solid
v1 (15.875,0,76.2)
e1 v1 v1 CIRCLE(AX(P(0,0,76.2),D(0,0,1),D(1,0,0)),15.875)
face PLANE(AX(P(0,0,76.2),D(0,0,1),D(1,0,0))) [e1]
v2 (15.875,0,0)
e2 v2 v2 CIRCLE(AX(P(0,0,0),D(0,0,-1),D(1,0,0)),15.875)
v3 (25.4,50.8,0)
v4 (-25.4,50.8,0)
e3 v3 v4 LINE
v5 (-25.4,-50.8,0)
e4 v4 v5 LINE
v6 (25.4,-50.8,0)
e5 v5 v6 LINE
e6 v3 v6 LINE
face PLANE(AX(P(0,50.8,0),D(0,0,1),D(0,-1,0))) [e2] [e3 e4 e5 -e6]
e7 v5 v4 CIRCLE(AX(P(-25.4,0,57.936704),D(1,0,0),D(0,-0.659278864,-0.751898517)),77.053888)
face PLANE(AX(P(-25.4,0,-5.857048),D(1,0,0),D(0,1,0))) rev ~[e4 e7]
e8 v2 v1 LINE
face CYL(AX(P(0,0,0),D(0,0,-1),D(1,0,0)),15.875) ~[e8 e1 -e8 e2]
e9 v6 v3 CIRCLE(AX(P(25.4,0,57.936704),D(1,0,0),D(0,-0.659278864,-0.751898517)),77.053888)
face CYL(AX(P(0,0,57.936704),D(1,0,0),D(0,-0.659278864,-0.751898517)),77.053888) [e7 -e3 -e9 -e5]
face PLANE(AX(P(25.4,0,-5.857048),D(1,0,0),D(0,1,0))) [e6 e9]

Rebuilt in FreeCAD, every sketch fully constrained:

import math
import FreeCAD as App
import Part
import Sketcher

V = App.Vector
Q = App.Units.Quantity

doc = App.newDocument("Part")
body = doc.addObject("PartDesign::Body", "Body")

sketch1 = body.newObject("Sketcher::SketchObject", "Sketch")
sketch1.AttachmentSupport = (doc.getObject("XY_Plane"), [""])
sketch1.MapMode = "FlatFace"
sketch1.addGeometry(Part.Circle(V(0, 0, 0), V(0, 0, 1), 16), False)
sketch1.addConstraint([
    Sketcher.Constraint("Coincident", 0, 3, -1, 1),
    Sketcher.Constraint("Diameter", 0, Q("1.25 in")),
])
pad1 = body.newObject("PartDesign::Pad", "Pad")
pad1.Profile = sketch1
pad1.Length = Q("3 in")

sketch2 = body.newObject("Sketcher::SketchObject", "Sketch001")
sketch2.AttachmentSupport = (doc.getObject("YZ_Plane"), [""])
sketch2.MapMode = "FlatFace"
sketch2.addGeometry([
    Part.LineSegment(V(51, 0, 0), V(-51, 0, 0)),
    Part.ArcOfCircle(Part.Circle(V(0, 58, 0), V(0, 0, 1), 77), math.radians(-131), math.radians(-49)),
], False)
sketch2.addConstraint([
    Sketcher.Constraint("Coincident", 0, 1, 1, 2),
    Sketcher.Constraint("Coincident", 1, 1, 0, 2),
    Sketcher.Constraint("Horizontal", 0),
    Sketcher.Constraint("Symmetric", 0, 1, 1, 1, -1, 1),
    Sketcher.Constraint("DistanceX", 0, 2, 0, 1, Q("4 in")),
    Sketcher.Constraint("Radius", 1, Q("77.053888 mm")),
])
pad2 = body.newObject("PartDesign::Pad", "Pad001")
pad2.Profile = sketch2
pad2.Length = Q("1 in")

sketch3 = body.newObject("Sketcher::SketchObject", "Sketch002")
sketch3.AttachmentSupport = (doc.getObject("YZ_Plane"), [""])
sketch3.MapMode = "FlatFace"
sketch3.addGeometry([
    Part.LineSegment(V(51, 0, 0), V(-51, 0, 0)),
    Part.ArcOfCircle(Part.Circle(V(0, 58, 0), V(0, 0, 1), 77), math.radians(-131), math.radians(-49)),
], False)
sketch3.addConstraint([
    Sketcher.Constraint("Coincident", 0, 1, 1, 2),
    Sketcher.Constraint("Coincident", 1, 1, 0, 2),
    Sketcher.Constraint("Horizontal", 0),
    Sketcher.Constraint("Symmetric", 0, 1, 1, 1, -1, 1),
    Sketcher.Constraint("DistanceX", 0, 2, 0, 1, Q("4 in")),
    Sketcher.Constraint("Radius", 1, Q("77.053888 mm")),
])
pad3 = body.newObject("PartDesign::Pad", "Pad002")
pad3.Profile = sketch3
pad3.Length = Q("1 in")
pad3.Reversed = True

doc.recompute()
